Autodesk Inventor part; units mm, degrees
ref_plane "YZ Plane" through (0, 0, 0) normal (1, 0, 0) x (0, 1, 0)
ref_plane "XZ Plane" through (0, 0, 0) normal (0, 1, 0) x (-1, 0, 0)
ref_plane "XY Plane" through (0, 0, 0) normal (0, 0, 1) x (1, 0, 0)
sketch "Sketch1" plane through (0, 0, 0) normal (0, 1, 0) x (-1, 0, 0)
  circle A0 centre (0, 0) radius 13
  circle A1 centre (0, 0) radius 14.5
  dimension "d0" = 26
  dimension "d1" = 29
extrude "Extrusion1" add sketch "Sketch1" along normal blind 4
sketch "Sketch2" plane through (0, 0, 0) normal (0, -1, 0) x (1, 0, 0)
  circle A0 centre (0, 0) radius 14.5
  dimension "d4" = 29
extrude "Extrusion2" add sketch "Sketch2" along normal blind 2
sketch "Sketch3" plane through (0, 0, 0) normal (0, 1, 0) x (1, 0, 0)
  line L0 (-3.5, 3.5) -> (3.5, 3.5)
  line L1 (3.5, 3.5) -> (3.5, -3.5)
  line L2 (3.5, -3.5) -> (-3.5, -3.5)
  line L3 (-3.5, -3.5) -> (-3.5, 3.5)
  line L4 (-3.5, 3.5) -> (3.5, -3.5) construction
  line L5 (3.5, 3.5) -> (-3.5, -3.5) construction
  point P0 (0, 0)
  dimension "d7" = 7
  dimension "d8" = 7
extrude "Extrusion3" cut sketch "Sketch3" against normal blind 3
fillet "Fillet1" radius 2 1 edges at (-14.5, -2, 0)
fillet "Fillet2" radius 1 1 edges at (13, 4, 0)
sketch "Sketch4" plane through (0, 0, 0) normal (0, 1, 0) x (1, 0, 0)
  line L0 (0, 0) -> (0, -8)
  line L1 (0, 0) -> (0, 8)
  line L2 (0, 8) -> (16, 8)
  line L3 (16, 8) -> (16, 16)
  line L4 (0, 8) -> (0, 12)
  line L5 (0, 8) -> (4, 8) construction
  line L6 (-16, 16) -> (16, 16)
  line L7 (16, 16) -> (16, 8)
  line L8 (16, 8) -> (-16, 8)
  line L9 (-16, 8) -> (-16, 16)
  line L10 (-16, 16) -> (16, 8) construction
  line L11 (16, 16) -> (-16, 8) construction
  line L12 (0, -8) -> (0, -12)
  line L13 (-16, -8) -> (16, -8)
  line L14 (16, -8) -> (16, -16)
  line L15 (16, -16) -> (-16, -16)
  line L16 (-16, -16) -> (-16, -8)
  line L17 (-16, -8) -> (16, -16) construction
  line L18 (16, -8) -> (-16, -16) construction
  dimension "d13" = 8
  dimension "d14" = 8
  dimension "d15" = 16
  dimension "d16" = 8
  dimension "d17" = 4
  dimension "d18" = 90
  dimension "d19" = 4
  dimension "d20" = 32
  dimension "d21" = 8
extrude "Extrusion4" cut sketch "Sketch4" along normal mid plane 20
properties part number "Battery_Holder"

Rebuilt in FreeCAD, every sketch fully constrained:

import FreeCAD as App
import Part
import Sketcher
from FreeCAD import Vector


def edges_at(feature, points):
    """Names of the edges that pass closest to the given points."""
    edges = feature.Shape.Edges
    near = lambda p: min(range(len(edges)), key=lambda i: edges[i].distToShape(Part.Vertex(*p))[0])
    return sorted({f"Edge{near(p) + 1}" for p in points})

doc = App.newDocument("Part")
params = doc.addObject("Spreadsheet::Sheet", "Params")
for row, (alias, value) in enumerate([
    ("sketch1_diameter", "29 mm"),
    ("sketch1_diameter2", "26 mm"),
    ("pad1_length", "4 mm"),
    ("sketch2_diameter", "29 mm"),
    ("pad2_length", "2 mm"),
    ("sketch3_width", "7 mm"),
    ("pocket1_length", "3 mm"),
    ("fillet_radius", "2 mm"),
    ("fillet2_radius", "1 mm"),
    ("sketch4_width", "32 mm"),
    ("sketch4_height", "8 mm"),
    ("pocket2_length", "20 mm"),
], start=1):
    params.set(f"A{row}", alias)
    params.set(f"B{row}", "=" + value)
    params.setAlias(f"B{row}", alias)

body = doc.addObject("PartDesign::Body", "Body")

# Sketch on XZ plane
sketch1 = doc.addObject("Sketcher::SketchObject", "Sketch")
body.addObject(sketch1)
sketch1.AttachmentSupport = (doc.XZ_Plane, [""])
sketch1.MapMode = "FlatFace"
sketch1.addGeometry([
    Part.Circle(Vector(0, 0, 0), Vector(0, 0, 1), 14.5),
    Part.Circle(Vector(0, 0, 0), Vector(0, 0, 1), 13),
], False)
sketch1.addConstraint([
    Sketcher.Constraint("Coincident", 0, 3, -1, 1),
    Sketcher.Constraint("Coincident", 1, 3, -1, 1),
    Sketcher.Constraint("Diameter", 0, 29.0),
    Sketcher.Constraint("Diameter", 1, 26.0),
])
sketch1.setExpression("Constraints[2]", "Params.sketch1_diameter")
sketch1.setExpression("Constraints[3]", "Params.sketch1_diameter2")
pad1 = doc.addObject("PartDesign::Pad", "Pad")
body.addObject(pad1)
pad1.Profile = sketch1
pad1.setExpression("Length", "Params.pad1_length")
pad1.Reversed = True

# Sketch on XZ plane
sketch2 = doc.addObject("Sketcher::SketchObject", "Sketch001")
body.addObject(sketch2)
sketch2.AttachmentSupport = (doc.XZ_Plane, [""])
sketch2.MapMode = "FlatFace"
sketch2.addGeometry(Part.Circle(Vector(0, 0, 0), Vector(0, 0, 1), 14.5), False)
sketch2.addConstraint([
    Sketcher.Constraint("Coincident", 0, 3, -1, 1),
    Sketcher.Constraint("Diameter", 0, 29.0),
])
sketch2.setExpression("Constraints[1]", "Params.sketch2_diameter")
pad2 = doc.addObject("PartDesign::Pad", "Pad001")
body.addObject(pad2)
pad2.Profile = sketch2
pad2.setExpression("Length", "Params.pad2_length")

# Sketch on XZ plane
sketch3 = doc.addObject("Sketcher::SketchObject", "Sketch002")
body.addObject(sketch3)
sketch3.AttachmentSupport = (doc.XZ_Plane, [""])
sketch3.MapMode = "FlatFace"
sketch3.addGeometry([
    Part.LineSegment(Vector(3.5, -3.5, 0), Vector(-3.5, -3.5, 0)),
    Part.LineSegment(Vector(-3.5, -3.5, 0), Vector(-3.5, 3.5, 0)),
    Part.LineSegment(Vector(-3.5, 3.5, 0), Vector(3.5, 3.5, 0)),
    Part.LineSegment(Vector(3.5, 3.5, 0), Vector(3.5, -3.5, 0)),
], False)
sketch3.addConstraint([
    Sketcher.Constraint("Coincident", 0, 2, 1, 1),
    Sketcher.Constraint("Coincident", 1, 2, 2, 1),
    Sketcher.Constraint("Coincident", 2, 2, 3, 1),
    Sketcher.Constraint("Coincident", 3, 2, 0, 1),
    Sketcher.Constraint("Horizontal", 0),
    Sketcher.Constraint("Vertical", 1),
    Sketcher.Constraint("Horizontal", 2),
    Sketcher.Constraint("Vertical", 3),
    Sketcher.Constraint("Symmetric", 0, 2, 2, 2, -1, 1),
    Sketcher.Constraint("Equal", 2, 1),
    Sketcher.Constraint("DistanceX", 0, 2, 0, 1, 7.0),
])
sketch3.setExpression("Constraints[10]", "Params.sketch3_width")
pocket1 = doc.addObject("PartDesign::Pocket", "Pocket")
body.addObject(pocket1)
pocket1.Profile = sketch3
pocket1.setExpression("Length", "Params.pocket1_length")
pocket1.Reversed = True
doc.recompute()

fillet = doc.addObject("PartDesign::Fillet", "Fillet")
body.addObject(fillet)
fillet.Base = (pocket1, edges_at(pocket1, [(-14.5, -2, 0)]))
fillet.setExpression("Radius", "Params.fillet_radius")
doc.recompute()

fillet2 = doc.addObject("PartDesign::Fillet", "Fillet001")
body.addObject(fillet2)
fillet2.Base = (fillet, edges_at(fillet, [(13, 4, 0)]))
fillet2.setExpression("Radius", "Params.fillet2_radius")

# Sketch on XZ plane
sketch4 = doc.addObject("Sketcher::SketchObject", "Sketch003")
body.addObject(sketch4)
sketch4.AttachmentSupport = (doc.XZ_Plane, [""])
sketch4.MapMode = "FlatFace"
sketch4.addGeometry([
    Part.LineSegment(Vector(16, 8, 0), Vector(-16, 8, 0)),  # 0
    Part.LineSegment(Vector(-16, 8, 0), Vector(-16, 16, 0)),  # 1
    Part.LineSegment(Vector(-16, 16, 0), Vector(16, 16, 0)),  # 2
    Part.LineSegment(Vector(16, 16, 0), Vector(16, 8, 0)),  # 3
    Part.LineSegment(Vector(-16, -8, 0), Vector(16, -8, 0)),  # 4
    Part.LineSegment(Vector(16, -8, 0), Vector(16, -16, 0)),  # 5
    Part.LineSegment(Vector(16, -16, 0), Vector(-16, -16, 0)),  # 6
    Part.LineSegment(Vector(-16, -16, 0), Vector(-16, -8, 0)),  # 7
], False)
sketch4.addConstraint([
    Sketcher.Constraint("Coincident", 0, 2, 1, 1),
    Sketcher.Constraint("Coincident", 1, 2, 2, 1),
    Sketcher.Constraint("Coincident", 2, 2, 3, 1),
    Sketcher.Constraint("Coincident", 3, 2, 0, 1),
    Sketcher.Constraint("Coincident", 4, 2, 5, 1),
    Sketcher.Constraint("Coincident", 5, 2, 6, 1),
    Sketcher.Constraint("Coincident", 6, 2, 7, 1),
    Sketcher.Constraint("Coincident", 7, 2, 4, 1),
    Sketcher.Constraint("Horizontal", 0),
    Sketcher.Constraint("Vertical", 1),
    Sketcher.Constraint("Horizontal", 2),
    Sketcher.Constraint("Vertical", 3),
    Sketcher.Constraint("Horizontal", 4),
    Sketcher.Constraint("Vertical", 5),
    Sketcher.Constraint("Horizontal", 6),
    Sketcher.Constraint("Vertical", 7),
    Sketcher.Constraint("Symmetric", 0, 2, 4, 2, -1, 1),
    Sketcher.Constraint("Symmetric", 2, 2, 6, 2, -1, 1),
    Sketcher.Constraint("Vertical", 3, 2, 4, 2),
    Sketcher.Constraint("DistanceX", 0, 2, 0, 1, 32.0),
    Sketcher.Constraint("DistanceY", 1, 1, 1, 2, 8.0),
    Sketcher.Constraint("DistanceY", -1, 1, 0, 2, 8.0),
])
sketch4.setExpression("Constraints[19]", "Params.sketch4_width")
sketch4.setExpression("Constraints[20]", "Params.sketch4_height")
pocket2 = doc.addObject("PartDesign::Pocket", "Pocket001")
body.addObject(pocket2)
pocket2.Profile = sketch4
pocket2.setExpression("Length", "Params.pocket2_length")
pocket2.Midplane = True

doc.recompute()
